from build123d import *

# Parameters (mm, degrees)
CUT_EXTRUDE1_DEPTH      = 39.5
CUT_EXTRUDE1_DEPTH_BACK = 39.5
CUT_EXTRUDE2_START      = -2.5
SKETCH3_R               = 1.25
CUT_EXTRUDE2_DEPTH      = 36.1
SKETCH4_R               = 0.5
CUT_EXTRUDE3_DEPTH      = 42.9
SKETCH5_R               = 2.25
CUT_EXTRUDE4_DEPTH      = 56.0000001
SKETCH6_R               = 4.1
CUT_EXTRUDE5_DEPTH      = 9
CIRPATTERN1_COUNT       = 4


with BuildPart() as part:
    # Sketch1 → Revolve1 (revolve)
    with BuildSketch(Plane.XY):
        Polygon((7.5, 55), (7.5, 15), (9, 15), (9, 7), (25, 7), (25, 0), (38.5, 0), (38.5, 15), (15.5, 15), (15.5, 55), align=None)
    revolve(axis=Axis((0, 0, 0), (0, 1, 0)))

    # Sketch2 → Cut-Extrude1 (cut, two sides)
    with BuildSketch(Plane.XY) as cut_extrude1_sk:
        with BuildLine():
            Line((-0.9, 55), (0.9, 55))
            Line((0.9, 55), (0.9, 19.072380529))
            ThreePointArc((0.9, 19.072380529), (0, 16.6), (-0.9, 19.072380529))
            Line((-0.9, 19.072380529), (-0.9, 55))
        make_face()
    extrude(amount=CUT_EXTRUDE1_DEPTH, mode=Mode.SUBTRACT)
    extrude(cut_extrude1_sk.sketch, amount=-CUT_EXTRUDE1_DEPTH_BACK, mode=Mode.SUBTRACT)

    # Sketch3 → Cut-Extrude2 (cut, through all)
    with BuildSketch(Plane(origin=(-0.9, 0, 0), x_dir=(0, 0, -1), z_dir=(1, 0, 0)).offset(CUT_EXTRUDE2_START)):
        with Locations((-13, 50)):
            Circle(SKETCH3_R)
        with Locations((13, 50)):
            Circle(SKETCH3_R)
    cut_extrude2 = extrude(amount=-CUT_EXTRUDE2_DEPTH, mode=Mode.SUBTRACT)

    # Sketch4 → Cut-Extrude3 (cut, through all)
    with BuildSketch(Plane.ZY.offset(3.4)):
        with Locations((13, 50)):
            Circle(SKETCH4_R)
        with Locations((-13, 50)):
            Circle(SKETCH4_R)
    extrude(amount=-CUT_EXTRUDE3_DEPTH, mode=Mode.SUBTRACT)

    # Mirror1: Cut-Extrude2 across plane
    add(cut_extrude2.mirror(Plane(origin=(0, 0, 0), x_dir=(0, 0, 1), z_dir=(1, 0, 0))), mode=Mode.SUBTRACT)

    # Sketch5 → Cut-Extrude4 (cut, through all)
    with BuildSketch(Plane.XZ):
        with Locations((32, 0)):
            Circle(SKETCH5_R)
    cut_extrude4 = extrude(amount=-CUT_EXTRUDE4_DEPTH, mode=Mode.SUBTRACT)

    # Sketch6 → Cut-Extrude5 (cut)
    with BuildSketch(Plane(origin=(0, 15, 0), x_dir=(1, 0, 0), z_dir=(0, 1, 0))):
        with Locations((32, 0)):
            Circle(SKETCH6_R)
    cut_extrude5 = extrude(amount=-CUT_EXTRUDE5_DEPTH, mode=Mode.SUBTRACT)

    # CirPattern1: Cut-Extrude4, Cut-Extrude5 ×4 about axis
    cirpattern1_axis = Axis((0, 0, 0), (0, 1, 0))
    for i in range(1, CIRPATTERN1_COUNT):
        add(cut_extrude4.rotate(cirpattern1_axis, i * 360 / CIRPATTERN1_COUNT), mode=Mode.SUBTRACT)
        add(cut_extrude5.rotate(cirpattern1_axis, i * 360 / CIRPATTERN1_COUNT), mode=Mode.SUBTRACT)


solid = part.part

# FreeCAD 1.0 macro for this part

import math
import FreeCAD as App
import Part
import Sketcher
from FreeCAD import Vector


def add_polygon(sketch, points):
    """Adds a closed chain of lines whose ends are joined by coincident constraints."""
    first, n = sketch.GeometryCount, len(points)
    for a, b in zip(points, points[1:] + points[:1]):
        sketch.addGeometry(Part.LineSegment(App.Vector(*a, 0), App.Vector(*b, 0)), False)
    for i in range(n):
        sketch.addConstraint(Sketcher.Constraint("Coincident", first + i, 2, first + (i + 1) % n, 1))

doc = App.newDocument("Part")
body = doc.addObject("PartDesign::Body", "Body")

sketch1 = doc.addObject("Sketcher::SketchObject", "Sketch")
body.addObject(sketch1)
sketch1.AttachmentSupport = (doc.XY_Plane, [""])
sketch1.MapMode = "FlatFace"
add_polygon(sketch1, [(7.5, 55), (7.5, 15), (9, 15), (9, 7), (25, 7), (25, 0), (38.5, 0), (38.5, 15), (15.5, 15), (15.5, 55)])
sketch1.addConstraint([
    Sketcher.Constraint("Vertical", 0),
    Sketcher.Constraint("Horizontal", 1),
    Sketcher.Constraint("Vertical", 2),
    Sketcher.Constraint("Horizontal", 3),
    Sketcher.Constraint("Vertical", 4),
    Sketcher.Constraint("Horizontal", 5),
    Sketcher.Constraint("Vertical", 6),
    Sketcher.Constraint("Horizontal", 7),
    Sketcher.Constraint("Vertical", 8),
    Sketcher.Constraint("Horizontal", 9),
    Sketcher.Constraint("PointOnObject", 4, 2, -1),
    Sketcher.Constraint("Horizontal", 1, 2, 6, 2),
    Sketcher.Constraint("Equal", 9, 2),
    Sketcher.Constraint("DistanceX", 3, 1, 3, 2, 16.0),
    Sketcher.Constraint("DistanceX", 7, 2, 7, 1, 23.0),
    Sketcher.Constraint("DistanceX", 9, 2, 9, 1, 8.0),
    Sketcher.Constraint("DistanceY", 0, 2, 0, 1, 40.0),
    Sketcher.Constraint("DistanceY", 4, 2, 4, 1, 7.0),
    Sketcher.Constraint("DistanceX", 1, 1, 1, 2, 1.5),
    Sketcher.Constraint("DistanceX", -1, 1, 1, 2, 9.0),
])
revolution = doc.addObject("PartDesign::Revolution", "Revolution")
body.addObject(revolution)
revolution.Profile = sketch1
revolution.ReferenceAxis = (sketch1, ["V_Axis"])
revolution.Angle = 360

sketch2 = doc.addObject("Sketcher::SketchObject", "Sketch001")
body.addObject(sketch2)
sketch2.AttachmentSupport = (doc.XY_Plane, [""])
sketch2.MapMode = "FlatFace"
sketch2.addGeometry([
    Part.LineSegment(Vector(0.9, 55, 0), Vector(-0.9, 55, 0)),
    Part.LineSegment(Vector(-0.9, 55, 0), Vector(-0.9, 19.1, 0)),
    Part.ArcOfCircle(Part.Circle(Vector(0, 18, 0), Vector(0, 0, 1), 1.4), math.radians(130), math.radians(410)),
    Part.LineSegment(Vector(0.9, 19.1, 0), Vector(0.9, 55, 0)),
], False)
sketch2.addConstraint([
    Sketcher.Constraint("Coincident", 0, 2, 1, 1),
    Sketcher.Constraint("Coincident", 1, 2, 2, 1),
    Sketcher.Constraint("Coincident", 2, 2, 3, 1),
    Sketcher.Constraint("Coincident", 3, 2, 0, 1),
    Sketcher.Constraint("Horizontal", 0),
    Sketcher.Constraint("Vertical", 1),
    Sketcher.Constraint("Vertical", 3),
    Sketcher.Constraint("Symmetric", 1, 2, 2, 2, -2),
    Sketcher.Constraint("Radius", 2, 1.4),
    Sketcher.Constraint("DistanceX", 0, 2, 0, 1, 1.8),
    Sketcher.Constraint("DistanceY", -1, 1, 2, 3, 18.0),
    Sketcher.Constraint("DistanceY", -1, 1, 0, 2, 55.0),
])
pocket1 = doc.addObject("PartDesign::Pocket", "Pocket")
body.addObject(pocket1)
pocket1.Profile = sketch2
pocket1.Type = "ThroughAll"
pocket1.Midplane = True

sketch3 = doc.addObject("Sketcher::SketchObject", "Sketch002")
body.addObject(sketch3)
sketch3.AttachmentSupport = (doc.YZ_Plane, [""])
sketch3.MapMode = "FlatFace"
sketch3.AttachmentOffset = App.Placement(Vector(0, 0, -3.4), App.Rotation())
sketch3.addGeometry([
    Part.Circle(Vector(50, 13, 0), Vector(0, 0, 1), 1.2),
    Part.Circle(Vector(50, -13, 0), Vector(0, 0, 1), 1.2),
], False)
sketch3.addConstraint([
    Sketcher.Constraint("Equal", 0, 1),
    Sketcher.Constraint("Symmetric", 0, 3, 1, 3, -1),
    Sketcher.Constraint("Diameter", 0, 2.5),
    Sketcher.Constraint("DistanceX", -1, 1, 0, 3, 50.0),
    Sketcher.Constraint("DistanceY", -1, 1, 0, 3, 13.0),
])
pocket2 = doc.addObject("PartDesign::Pocket", "Pocket001")
body.addObject(pocket2)
pocket2.Profile = sketch3
pocket2.Type = "ThroughAll"

sketch4 = doc.addObject("Sketcher::SketchObject", "Sketch003")
body.addObject(sketch4)
sketch4.AttachmentSupport = (doc.YZ_Plane, [""])
sketch4.MapMode = "FlatFace"
sketch4.AttachmentOffset = App.Placement(Vector(0, 0, -3.4), App.Rotation())
sketch4.addGeometry([
    Part.Circle(Vector(50, 13, 0), Vector(0, 0, 1), 0.5),
    Part.Circle(Vector(50, -13, 0), Vector(0, 0, 1), 0.5),
], False)
sketch4.addConstraint([
    Sketcher.Constraint("Equal", 0, 1),
    Sketcher.Constraint("Symmetric", 0, 3, 1, 3, -1),
    Sketcher.Constraint("Diameter", 0, 1.0),
    Sketcher.Constraint("DistanceX", -1, 1, 0, 3, 50.0),
    Sketcher.Constraint("DistanceY", -1, 1, 0, 3, 13.0),
])
pocket3 = doc.addObject("PartDesign::Pocket", "Pocket002")
body.addObject(pocket3)
pocket3.Profile = sketch4
pocket3.Type = "ThroughAll"
pocket3.Reversed = True
doc.recompute()

mirrored = doc.addObject("PartDesign::Mirrored", "Mirrored")
body.addObject(mirrored)
mirrored.Originals = [pocket2]
mirrored.MirrorPlane = (doc.YZ_Plane, [""])
body.Tip = mirrored

sketch5 = doc.addObject("Sketcher::SketchObject", "Sketch004")
body.addObject(sketch5)
sketch5.AttachmentSupport = (doc.XZ_Plane, [""])
sketch5.MapMode = "FlatFace"
sketch5.addGeometry(Part.Circle(Vector(32, 0, 0), Vector(0, 0, 1), 2.2), False)
sketch5.addConstraint([
    Sketcher.Constraint("PointOnObject", 0, 3, -1),
    Sketcher.Constraint("Diameter", 0, 4.5),
    Sketcher.Constraint("DistanceX", -1, 1, 0, 3, 32.0),
])
pocket4 = doc.addObject("PartDesign::Pocket", "Pocket003")
body.addObject(pocket4)
pocket4.Profile = sketch5
pocket4.Type = "ThroughAll"

sketch6 = doc.addObject("Sketcher::SketchObject", "Sketch005")
body.addObject(sketch6)
sketch6.AttachmentSupport = (doc.XZ_Plane, [""])
sketch6.MapMode = "FlatFace"
sketch6.AttachmentOffset = App.Placement(Vector(0, 0, -15), App.Rotation())
sketch6.addGeometry(Part.Circle(Vector(32, 0, 0), Vector(0, 0, 1), 4.1), False)
sketch6.addConstraint([
    Sketcher.Constraint("PointOnObject", 0, 3, -1),
    Sketcher.Constraint("Diameter", 0, 8.2),
    Sketcher.Constraint("DistanceX", -1, 1, 0, 3, 32.0),
])
pocket5 = doc.addObject("PartDesign::Pocket", "Pocket004")
body.addObject(pocket5)
pocket5.Profile = sketch6
pocket5.Length = 9
pocket5.Reversed = True
doc.recompute()

polarpattern = doc.addObject("PartDesign::PolarPattern", "PolarPattern")
body.addObject(polarpattern)
polarpattern.Originals = [pocket4, pocket5]
polarpattern.Axis = (doc.Y_Axis, [""])
polarpattern.Angle = 360
polarpattern.Occurrences = 4
body.Tip = polarpattern

doc.recompute()
